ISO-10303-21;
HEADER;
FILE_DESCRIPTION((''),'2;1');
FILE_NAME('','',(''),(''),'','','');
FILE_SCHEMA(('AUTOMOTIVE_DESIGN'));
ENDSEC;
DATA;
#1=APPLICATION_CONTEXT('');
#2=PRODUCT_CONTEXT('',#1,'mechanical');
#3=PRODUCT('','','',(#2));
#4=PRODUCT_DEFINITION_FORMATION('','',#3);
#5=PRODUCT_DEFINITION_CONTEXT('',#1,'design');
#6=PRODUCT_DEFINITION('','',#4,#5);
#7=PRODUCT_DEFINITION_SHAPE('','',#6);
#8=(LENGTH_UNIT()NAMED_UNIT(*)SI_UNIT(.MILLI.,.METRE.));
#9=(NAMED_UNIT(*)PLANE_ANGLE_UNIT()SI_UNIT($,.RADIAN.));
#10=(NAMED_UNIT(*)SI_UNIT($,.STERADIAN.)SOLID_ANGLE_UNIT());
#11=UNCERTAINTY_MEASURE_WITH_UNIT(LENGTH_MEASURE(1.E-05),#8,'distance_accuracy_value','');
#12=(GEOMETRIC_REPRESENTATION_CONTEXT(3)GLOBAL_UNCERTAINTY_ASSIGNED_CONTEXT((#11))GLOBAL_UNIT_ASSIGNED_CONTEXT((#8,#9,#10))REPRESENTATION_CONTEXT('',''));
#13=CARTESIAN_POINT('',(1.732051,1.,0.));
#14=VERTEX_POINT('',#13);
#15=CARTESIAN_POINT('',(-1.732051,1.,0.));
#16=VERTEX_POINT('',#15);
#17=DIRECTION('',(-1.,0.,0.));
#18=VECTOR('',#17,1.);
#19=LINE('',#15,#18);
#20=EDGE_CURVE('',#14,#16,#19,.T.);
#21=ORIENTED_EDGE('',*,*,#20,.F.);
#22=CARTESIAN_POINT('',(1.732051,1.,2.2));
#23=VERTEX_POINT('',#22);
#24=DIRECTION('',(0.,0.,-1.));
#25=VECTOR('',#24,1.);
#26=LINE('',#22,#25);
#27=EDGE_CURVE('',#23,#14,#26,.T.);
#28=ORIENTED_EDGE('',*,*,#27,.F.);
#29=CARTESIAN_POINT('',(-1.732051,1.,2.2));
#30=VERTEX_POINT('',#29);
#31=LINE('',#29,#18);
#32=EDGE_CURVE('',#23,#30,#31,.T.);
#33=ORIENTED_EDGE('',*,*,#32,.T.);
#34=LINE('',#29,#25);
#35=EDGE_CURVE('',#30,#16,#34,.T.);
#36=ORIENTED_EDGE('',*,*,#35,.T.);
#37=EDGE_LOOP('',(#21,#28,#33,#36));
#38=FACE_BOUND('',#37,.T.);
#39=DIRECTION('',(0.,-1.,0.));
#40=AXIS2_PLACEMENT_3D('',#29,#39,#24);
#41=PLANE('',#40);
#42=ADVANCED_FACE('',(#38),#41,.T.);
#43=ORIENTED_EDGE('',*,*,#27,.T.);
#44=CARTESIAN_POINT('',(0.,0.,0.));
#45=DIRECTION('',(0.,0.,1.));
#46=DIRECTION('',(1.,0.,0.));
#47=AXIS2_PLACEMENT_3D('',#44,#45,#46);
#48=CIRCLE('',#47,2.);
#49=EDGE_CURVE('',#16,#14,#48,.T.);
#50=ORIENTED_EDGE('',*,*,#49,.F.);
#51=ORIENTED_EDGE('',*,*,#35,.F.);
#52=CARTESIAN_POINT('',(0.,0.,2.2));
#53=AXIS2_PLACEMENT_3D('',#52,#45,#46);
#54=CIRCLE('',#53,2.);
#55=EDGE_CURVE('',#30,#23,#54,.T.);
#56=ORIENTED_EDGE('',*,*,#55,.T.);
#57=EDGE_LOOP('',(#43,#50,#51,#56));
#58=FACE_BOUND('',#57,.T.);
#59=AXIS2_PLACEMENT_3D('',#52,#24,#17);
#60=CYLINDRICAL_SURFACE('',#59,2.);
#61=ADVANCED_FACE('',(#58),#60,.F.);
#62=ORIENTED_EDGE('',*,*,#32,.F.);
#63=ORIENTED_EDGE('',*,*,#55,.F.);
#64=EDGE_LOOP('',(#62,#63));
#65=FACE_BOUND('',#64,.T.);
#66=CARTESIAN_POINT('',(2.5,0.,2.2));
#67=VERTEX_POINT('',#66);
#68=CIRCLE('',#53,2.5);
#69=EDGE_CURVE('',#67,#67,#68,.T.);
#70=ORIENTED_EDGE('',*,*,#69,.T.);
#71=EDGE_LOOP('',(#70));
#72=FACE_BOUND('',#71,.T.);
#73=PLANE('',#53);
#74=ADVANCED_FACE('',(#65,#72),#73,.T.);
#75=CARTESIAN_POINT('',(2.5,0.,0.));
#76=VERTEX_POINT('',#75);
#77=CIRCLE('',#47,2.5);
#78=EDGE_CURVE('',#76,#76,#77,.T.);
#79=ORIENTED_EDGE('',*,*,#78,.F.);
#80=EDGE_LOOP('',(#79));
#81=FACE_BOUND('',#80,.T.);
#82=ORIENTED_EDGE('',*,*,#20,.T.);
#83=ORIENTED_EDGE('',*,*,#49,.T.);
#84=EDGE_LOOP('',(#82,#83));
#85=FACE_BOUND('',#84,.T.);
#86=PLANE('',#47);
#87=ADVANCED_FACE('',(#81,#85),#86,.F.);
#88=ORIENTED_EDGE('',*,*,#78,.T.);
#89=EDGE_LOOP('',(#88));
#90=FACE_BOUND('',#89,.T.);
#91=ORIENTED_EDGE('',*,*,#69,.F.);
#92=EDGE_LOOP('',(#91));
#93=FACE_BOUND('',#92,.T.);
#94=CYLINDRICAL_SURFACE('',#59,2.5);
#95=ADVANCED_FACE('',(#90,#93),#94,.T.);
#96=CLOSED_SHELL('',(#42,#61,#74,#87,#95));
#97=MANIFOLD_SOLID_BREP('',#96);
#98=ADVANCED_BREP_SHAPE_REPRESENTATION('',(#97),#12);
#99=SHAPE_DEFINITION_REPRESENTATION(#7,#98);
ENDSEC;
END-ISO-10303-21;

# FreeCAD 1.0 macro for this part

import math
import FreeCAD as App
import Part
import Sketcher

doc = App.newDocument("Part")
body = doc.addObject("PartDesign::Body", "Body")

sketch1 = doc.addObject("Sketcher::SketchObject", "Sketch")
body.addObject(sketch1)
sketch1.AttachmentSupport = (doc.XY_Plane, [""])
sketch1.MapMode = "FlatFace"
sketch1.addGeometry(Part.Circle(App.Vector(0, 0, 0), App.Vector(0, 0, 1), 2.5), False)
sketch1.addGeometry(Part.ArcOfCircle(Part.Circle(App.Vector(0, 0, 0), App.Vector(0, 0, 1), 2), math.radians(150), math.radians(390)), False)
sketch1.addGeometry(Part.LineSegment(App.Vector(-1.7, 1, 0), App.Vector(1.7, 1, 0)), False)
sketch1.addConstraint(Sketcher.Constraint("Coincident", 1, 1, 2, 1))
sketch1.addConstraint(Sketcher.Constraint("Coincident", 2, 2, 1, 2))
sketch1.addConstraint(Sketcher.Constraint("Horizontal", 2))
sketch1.addConstraint(Sketcher.Constraint("Coincident", 0, 3, -1, 1))
sketch1.addConstraint(Sketcher.Constraint("Coincident", 1, 3, -1, 1))
sketch1.addConstraint(Sketcher.Constraint("Diameter", 0, 5.0))
sketch1.addConstraint(Sketcher.Constraint("Radius", 1, 2.0))
sketch1.addConstraint(Sketcher.Constraint("DistanceY", -1, 1, 1, 1, 1.0))
pad1 = doc.addObject("PartDesign::Pad", "Pad")
body.addObject(pad1)
pad1.Profile = sketch1
pad1.Length = 2.2

doc.recompute()
